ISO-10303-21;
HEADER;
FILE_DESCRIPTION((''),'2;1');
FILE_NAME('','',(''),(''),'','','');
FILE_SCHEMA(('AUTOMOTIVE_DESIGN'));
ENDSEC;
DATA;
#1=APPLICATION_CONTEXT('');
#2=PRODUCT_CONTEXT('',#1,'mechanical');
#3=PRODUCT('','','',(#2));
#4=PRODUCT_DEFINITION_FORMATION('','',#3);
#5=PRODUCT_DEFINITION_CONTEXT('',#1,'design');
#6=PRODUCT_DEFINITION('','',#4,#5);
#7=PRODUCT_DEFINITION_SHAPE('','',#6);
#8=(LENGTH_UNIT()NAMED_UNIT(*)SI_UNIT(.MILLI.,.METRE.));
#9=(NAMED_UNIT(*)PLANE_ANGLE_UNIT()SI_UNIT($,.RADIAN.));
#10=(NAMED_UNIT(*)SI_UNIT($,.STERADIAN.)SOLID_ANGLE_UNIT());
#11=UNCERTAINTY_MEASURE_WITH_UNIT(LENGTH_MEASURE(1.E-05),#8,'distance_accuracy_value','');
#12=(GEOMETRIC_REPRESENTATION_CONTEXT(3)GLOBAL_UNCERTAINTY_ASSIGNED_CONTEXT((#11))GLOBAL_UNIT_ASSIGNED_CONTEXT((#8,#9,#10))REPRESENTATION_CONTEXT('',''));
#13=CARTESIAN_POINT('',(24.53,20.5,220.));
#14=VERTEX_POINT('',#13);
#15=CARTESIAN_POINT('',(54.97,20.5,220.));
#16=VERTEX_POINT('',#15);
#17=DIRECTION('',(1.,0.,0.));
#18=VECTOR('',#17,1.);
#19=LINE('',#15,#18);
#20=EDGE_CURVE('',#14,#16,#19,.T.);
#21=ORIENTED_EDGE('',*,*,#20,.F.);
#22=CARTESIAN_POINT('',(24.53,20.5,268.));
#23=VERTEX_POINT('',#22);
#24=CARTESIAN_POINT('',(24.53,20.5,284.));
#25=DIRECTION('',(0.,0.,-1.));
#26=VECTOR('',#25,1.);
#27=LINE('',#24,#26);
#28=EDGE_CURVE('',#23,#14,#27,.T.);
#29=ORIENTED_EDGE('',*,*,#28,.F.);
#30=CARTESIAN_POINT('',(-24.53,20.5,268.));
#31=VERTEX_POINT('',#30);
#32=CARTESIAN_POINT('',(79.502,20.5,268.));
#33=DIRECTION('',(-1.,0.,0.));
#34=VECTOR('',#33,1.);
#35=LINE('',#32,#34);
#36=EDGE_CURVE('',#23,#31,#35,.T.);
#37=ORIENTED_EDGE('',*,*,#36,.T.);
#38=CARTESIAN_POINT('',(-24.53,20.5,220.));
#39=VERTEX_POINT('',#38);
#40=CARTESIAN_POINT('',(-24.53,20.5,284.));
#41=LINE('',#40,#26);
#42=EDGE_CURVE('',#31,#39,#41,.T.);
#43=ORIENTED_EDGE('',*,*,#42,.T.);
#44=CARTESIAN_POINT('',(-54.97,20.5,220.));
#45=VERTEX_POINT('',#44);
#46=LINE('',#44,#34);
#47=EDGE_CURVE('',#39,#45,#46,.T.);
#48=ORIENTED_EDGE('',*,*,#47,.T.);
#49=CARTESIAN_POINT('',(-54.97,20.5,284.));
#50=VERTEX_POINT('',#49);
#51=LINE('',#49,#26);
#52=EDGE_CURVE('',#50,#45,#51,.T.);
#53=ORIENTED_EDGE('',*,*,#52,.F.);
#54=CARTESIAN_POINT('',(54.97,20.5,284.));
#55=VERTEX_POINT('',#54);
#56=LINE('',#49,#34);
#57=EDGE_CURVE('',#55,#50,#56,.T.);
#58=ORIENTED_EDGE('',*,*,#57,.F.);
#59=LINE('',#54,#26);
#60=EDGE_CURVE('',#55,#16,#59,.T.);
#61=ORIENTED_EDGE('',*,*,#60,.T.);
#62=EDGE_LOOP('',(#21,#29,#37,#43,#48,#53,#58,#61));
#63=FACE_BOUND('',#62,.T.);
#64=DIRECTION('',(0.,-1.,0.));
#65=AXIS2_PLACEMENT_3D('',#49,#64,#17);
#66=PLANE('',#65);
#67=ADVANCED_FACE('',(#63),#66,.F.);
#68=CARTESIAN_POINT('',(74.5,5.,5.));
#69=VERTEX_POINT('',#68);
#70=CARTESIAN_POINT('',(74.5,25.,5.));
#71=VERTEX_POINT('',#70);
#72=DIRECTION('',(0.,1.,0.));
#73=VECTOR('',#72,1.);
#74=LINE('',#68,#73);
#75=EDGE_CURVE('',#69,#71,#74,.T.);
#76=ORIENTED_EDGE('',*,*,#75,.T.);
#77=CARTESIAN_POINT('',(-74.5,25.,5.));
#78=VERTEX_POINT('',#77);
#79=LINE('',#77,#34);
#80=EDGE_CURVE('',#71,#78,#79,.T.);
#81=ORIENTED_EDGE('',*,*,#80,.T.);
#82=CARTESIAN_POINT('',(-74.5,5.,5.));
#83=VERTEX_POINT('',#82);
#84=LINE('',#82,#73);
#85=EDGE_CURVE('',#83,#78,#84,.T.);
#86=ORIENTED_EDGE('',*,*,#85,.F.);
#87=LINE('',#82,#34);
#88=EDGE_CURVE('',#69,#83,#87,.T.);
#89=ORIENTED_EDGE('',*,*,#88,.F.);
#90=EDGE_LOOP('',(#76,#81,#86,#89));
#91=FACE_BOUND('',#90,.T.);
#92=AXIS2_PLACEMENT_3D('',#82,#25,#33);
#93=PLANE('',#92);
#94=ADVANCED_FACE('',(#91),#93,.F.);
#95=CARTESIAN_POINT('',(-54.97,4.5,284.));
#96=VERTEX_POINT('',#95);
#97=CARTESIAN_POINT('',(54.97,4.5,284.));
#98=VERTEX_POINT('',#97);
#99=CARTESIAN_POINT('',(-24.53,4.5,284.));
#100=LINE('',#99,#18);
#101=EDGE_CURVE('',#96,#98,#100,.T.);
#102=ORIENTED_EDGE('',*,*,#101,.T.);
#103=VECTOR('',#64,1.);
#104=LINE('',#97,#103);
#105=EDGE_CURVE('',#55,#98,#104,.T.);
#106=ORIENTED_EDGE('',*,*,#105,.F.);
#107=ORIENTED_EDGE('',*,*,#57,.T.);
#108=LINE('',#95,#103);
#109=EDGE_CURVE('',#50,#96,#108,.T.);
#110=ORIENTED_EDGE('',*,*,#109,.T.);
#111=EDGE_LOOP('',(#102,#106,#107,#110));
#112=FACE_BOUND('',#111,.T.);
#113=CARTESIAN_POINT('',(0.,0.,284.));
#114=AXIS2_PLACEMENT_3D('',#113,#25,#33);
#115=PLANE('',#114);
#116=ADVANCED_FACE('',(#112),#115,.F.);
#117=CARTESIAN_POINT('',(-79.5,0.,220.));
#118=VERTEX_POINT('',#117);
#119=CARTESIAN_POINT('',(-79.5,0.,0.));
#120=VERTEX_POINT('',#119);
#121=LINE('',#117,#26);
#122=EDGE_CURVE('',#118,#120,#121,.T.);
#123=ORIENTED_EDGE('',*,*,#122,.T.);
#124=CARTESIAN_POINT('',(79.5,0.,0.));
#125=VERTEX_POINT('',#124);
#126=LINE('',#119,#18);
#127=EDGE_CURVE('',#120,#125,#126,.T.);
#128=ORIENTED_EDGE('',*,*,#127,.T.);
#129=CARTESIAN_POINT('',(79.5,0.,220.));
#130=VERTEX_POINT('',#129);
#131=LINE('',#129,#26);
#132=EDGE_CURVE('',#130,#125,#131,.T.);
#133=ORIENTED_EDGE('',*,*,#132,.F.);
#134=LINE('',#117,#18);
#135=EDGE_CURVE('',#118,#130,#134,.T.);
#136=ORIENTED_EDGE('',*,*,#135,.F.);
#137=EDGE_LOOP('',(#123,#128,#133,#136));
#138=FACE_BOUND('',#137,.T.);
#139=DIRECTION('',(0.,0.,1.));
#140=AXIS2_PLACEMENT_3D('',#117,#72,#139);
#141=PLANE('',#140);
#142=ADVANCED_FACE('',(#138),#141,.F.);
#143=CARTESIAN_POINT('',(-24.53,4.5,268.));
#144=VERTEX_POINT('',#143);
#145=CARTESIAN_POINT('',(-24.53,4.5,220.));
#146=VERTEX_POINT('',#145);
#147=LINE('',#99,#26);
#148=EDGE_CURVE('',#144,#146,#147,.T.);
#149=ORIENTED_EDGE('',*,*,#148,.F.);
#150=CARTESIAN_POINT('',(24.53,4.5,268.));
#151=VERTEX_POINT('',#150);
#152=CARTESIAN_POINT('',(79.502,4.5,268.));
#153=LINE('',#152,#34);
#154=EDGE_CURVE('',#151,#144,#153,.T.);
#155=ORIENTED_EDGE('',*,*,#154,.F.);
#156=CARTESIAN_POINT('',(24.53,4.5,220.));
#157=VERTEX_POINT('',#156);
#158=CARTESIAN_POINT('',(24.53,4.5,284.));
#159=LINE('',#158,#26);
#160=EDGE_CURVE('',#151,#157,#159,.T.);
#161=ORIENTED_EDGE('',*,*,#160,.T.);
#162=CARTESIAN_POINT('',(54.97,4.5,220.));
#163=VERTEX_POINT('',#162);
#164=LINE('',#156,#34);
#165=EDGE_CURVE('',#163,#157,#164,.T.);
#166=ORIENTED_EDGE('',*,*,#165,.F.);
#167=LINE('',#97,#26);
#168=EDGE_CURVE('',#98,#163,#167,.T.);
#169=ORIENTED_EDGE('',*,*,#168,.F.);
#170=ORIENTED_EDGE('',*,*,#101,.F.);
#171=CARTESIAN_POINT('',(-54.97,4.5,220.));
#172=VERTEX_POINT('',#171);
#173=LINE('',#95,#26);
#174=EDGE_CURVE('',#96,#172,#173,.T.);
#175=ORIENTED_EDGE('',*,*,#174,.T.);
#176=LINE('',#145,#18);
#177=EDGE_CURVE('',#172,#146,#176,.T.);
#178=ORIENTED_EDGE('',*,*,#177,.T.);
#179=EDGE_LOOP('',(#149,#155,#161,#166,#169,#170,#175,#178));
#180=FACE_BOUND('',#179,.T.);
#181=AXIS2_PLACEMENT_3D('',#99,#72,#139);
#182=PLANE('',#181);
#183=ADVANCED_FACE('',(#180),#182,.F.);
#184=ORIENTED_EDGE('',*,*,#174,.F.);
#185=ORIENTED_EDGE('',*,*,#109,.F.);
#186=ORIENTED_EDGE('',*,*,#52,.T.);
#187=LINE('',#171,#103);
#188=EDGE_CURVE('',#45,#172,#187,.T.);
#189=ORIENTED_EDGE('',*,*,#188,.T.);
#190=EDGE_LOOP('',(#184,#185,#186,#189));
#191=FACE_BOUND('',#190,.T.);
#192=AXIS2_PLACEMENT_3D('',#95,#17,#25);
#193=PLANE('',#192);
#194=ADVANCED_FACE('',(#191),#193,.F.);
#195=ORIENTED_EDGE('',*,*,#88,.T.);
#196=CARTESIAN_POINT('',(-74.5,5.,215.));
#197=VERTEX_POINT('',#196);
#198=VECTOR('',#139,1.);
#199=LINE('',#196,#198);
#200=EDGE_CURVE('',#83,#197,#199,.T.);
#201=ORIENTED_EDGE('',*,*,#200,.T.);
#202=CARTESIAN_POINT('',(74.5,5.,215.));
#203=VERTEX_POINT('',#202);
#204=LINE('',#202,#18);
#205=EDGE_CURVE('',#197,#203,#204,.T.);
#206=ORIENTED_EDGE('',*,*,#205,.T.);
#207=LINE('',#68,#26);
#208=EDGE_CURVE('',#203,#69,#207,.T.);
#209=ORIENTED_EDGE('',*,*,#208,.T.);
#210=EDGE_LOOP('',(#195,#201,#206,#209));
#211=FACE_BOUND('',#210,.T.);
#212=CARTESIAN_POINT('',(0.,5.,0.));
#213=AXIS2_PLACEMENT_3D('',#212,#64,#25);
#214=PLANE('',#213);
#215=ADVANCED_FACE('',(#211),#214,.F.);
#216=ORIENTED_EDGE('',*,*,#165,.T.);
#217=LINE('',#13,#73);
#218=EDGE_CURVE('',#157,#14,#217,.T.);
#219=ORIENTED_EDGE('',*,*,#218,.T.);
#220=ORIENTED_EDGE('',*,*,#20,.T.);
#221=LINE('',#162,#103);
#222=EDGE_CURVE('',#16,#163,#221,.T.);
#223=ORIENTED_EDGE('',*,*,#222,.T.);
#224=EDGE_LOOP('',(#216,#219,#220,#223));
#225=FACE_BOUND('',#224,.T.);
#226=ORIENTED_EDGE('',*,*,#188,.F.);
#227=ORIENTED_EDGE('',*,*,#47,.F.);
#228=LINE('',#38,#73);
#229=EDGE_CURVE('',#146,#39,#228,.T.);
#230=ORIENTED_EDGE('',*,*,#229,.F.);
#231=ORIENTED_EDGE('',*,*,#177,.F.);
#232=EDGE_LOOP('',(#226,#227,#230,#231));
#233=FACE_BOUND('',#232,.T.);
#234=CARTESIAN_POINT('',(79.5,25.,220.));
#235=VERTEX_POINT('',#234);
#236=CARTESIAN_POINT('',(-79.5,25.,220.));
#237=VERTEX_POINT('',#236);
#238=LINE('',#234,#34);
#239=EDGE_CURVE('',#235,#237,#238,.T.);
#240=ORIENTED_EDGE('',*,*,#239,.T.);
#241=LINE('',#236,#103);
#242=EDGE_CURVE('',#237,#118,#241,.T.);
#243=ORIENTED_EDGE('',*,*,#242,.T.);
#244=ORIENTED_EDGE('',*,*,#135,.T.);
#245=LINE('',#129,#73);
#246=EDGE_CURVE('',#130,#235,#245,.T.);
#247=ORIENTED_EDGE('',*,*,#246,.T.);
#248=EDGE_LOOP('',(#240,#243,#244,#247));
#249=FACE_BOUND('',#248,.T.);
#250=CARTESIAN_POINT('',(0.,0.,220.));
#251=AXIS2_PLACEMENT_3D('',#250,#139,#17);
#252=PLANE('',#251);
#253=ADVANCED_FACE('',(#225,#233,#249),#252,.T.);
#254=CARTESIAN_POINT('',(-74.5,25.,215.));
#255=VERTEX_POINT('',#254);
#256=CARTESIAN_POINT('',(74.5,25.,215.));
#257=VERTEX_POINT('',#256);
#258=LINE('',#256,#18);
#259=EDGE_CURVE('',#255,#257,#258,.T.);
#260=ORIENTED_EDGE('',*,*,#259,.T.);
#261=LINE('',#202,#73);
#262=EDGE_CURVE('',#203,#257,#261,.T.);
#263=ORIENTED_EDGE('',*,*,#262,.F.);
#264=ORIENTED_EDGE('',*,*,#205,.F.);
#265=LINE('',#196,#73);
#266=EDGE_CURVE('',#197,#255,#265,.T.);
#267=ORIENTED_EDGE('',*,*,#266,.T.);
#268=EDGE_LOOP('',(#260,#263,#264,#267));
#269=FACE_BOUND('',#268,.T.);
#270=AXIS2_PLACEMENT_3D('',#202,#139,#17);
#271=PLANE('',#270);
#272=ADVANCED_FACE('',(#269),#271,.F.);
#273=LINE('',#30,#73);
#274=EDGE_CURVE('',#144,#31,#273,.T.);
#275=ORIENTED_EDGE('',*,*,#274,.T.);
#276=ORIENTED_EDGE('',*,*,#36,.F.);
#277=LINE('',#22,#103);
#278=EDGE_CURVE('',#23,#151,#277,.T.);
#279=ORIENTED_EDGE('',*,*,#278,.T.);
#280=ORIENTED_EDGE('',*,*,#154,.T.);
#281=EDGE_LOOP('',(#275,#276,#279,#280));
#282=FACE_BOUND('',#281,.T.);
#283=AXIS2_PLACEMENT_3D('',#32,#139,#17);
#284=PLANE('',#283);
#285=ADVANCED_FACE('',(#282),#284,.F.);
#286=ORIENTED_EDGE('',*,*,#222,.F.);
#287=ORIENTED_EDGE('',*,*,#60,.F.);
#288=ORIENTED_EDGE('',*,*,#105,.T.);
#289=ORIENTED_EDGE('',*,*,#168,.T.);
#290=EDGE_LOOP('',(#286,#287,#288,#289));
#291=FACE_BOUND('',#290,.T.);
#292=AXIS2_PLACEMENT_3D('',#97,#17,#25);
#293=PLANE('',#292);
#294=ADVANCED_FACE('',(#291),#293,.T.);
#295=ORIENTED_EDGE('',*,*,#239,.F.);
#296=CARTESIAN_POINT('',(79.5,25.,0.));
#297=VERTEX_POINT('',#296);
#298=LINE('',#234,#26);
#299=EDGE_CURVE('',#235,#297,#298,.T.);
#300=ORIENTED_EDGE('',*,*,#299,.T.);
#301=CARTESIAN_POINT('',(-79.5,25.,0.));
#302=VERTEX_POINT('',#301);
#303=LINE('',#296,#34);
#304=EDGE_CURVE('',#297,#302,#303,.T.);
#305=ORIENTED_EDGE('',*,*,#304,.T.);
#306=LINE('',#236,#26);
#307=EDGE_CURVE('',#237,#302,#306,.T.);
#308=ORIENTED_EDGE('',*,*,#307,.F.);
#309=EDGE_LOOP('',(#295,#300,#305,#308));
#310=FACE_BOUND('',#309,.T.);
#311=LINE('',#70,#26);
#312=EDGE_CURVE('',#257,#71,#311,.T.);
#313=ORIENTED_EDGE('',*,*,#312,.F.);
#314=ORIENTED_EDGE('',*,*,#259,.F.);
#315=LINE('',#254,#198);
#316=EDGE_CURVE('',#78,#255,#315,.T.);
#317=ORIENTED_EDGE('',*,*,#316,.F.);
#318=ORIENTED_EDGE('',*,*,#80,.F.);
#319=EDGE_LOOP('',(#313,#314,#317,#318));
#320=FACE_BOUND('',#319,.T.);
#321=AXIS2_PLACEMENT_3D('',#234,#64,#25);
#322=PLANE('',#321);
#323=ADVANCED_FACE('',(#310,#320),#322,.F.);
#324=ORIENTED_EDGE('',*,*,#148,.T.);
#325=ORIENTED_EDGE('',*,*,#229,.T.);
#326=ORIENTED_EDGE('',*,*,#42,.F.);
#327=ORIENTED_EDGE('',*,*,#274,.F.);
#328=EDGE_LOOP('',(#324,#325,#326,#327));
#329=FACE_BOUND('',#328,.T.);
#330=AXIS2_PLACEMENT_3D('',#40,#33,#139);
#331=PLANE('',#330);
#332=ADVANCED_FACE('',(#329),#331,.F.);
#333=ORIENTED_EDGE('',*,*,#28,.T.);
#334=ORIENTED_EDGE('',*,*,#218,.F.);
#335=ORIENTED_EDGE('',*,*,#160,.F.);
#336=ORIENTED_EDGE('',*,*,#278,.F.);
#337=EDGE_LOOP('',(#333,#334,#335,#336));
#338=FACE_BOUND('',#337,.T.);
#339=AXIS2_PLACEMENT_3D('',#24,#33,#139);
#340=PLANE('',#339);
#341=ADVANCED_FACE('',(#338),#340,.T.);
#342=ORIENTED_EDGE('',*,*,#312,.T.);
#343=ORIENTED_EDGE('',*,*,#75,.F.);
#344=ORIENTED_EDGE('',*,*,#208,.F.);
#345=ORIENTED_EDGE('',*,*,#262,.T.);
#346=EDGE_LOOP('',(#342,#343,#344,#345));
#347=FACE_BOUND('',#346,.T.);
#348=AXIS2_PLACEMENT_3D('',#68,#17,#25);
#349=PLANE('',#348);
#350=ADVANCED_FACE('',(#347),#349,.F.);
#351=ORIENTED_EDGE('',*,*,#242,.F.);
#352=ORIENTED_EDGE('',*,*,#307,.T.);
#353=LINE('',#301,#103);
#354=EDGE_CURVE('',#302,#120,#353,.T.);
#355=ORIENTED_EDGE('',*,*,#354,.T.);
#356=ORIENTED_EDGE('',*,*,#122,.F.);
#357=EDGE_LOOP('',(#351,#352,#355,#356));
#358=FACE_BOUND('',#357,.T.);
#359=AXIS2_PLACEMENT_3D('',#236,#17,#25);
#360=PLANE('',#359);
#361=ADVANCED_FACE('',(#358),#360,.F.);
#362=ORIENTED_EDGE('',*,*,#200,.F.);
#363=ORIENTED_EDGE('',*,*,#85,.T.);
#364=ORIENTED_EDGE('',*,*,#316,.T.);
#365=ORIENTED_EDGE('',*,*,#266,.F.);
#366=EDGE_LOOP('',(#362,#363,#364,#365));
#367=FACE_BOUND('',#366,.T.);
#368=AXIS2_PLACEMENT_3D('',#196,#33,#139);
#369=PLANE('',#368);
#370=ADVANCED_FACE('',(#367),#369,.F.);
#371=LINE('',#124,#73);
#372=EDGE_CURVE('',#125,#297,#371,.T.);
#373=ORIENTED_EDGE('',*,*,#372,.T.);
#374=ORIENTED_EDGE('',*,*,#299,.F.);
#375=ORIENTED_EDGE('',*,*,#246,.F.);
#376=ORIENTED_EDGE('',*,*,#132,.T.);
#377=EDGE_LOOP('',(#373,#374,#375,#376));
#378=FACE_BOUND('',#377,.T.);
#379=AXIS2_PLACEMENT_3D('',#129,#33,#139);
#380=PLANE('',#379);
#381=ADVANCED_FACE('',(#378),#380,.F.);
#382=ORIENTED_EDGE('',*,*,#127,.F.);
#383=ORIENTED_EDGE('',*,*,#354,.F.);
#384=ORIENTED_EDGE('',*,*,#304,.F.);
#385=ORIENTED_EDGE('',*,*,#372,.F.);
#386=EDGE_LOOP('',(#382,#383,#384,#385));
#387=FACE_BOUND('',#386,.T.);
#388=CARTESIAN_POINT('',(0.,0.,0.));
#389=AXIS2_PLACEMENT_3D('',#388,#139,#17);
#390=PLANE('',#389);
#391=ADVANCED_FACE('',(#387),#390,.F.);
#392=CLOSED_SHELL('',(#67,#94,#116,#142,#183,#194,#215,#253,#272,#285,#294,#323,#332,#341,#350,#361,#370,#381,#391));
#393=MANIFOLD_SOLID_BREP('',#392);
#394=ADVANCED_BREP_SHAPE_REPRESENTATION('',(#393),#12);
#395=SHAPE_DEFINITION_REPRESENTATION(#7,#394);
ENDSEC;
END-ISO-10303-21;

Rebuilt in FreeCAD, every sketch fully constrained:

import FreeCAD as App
import Part
import Sketcher

V = App.Vector
Q = App.Units.Quantity

doc = App.newDocument("Part")
body = doc.addObject("PartDesign::Body", "Body")

# Sketch on XY plane
sketch1 = body.newObject("Sketcher::SketchObject", "Sketch")
sketch1.AttachmentSupport = (doc.getObject("XY_Plane"), [""])
sketch1.MapMode = "FlatFace"
sketch1.addGeometry([
    Part.LineSegment(V(-80, 25, 0), V(-80, 0, 0)),
    Part.LineSegment(V(-80, 0, 0), V(80, 0, 0)),
    Part.LineSegment(V(80, 0, 0), V(80, 25, 0)),
    Part.LineSegment(V(80, 25, 0), V(-80, 25, 0)),
], False)
sketch1.addConstraint([
    Sketcher.Constraint("Coincident", 0, 2, 1, 1),
    Sketcher.Constraint("Coincident", 1, 2, 2, 1),
    Sketcher.Constraint("Coincident", 2, 2, 3, 1),
    Sketcher.Constraint("Coincident", 3, 2, 0, 1),
    Sketcher.Constraint("Vertical", 0),
    Sketcher.Constraint("Horizontal", 1),
    Sketcher.Constraint("Vertical", 2),
    Sketcher.Constraint("Horizontal", 3),
    Sketcher.Constraint("Symmetric", 0, 2, 1, 2, -1, 1),
    Sketcher.Constraint("DistanceX", 1, 1, 1, 2, Q("159 mm")),
    Sketcher.Constraint("DistanceY", 0, 2, 0, 1, Q("25 mm")),
])
pad1 = body.newObject("PartDesign::Pad", "Pad")
pad1.Profile = sketch1
pad1.Length = 220

# Sketch on XZ plane
sketch2 = body.newObject("Sketcher::SketchObject", "Sketch001")
sketch2.AttachmentSupport = (doc.getObject("XZ_Plane"), [""])
sketch2.MapMode = "FlatFace"
sketch2.AttachmentOffset = App.Placement(V(0, 0, -25), App.Rotation())
sketch2.addGeometry([
    Part.LineSegment(V(-74, 5, 0), V(-74, 215, 0)),
    Part.LineSegment(V(-74, 215, 0), V(74, 215, 0)),
    Part.LineSegment(V(74, 215, 0), V(74, 5, 0)),
    Part.LineSegment(V(74, 5, 0), V(-74, 5, 0)),
], False)
sketch2.addConstraint([
    Sketcher.Constraint("Coincident", 0, 2, 1, 1),
    Sketcher.Constraint("Coincident", 1, 2, 2, 1),
    Sketcher.Constraint("Coincident", 2, 2, 3, 1),
    Sketcher.Constraint("Coincident", 3, 2, 0, 1),
    Sketcher.Constraint("Vertical", 0),
    Sketcher.Constraint("Horizontal", 1),
    Sketcher.Constraint("Vertical", 2),
    Sketcher.Constraint("Horizontal", 3),
    Sketcher.Constraint("DistanceX", 1, 1, 1, 2, Q("149 mm")),
    Sketcher.Constraint("DistanceY", 0, 1, 0, 2, Q("210 mm")),
    Sketcher.Constraint("DistanceY", -1, 1, 0, 2, Q("215 mm")),
    Sketcher.Constraint("DistanceX", 0, 2, -1, 1, Q("74.5 mm")),
])
pocket1 = body.newObject("PartDesign::Pocket", "Pocket")
pocket1.Profile = sketch2
pocket1.Length = 20
pocket1.Reversed = True

# Sketch on XY plane
sketch3 = body.newObject("Sketcher::SketchObject", "Sketch002")
sketch3.AttachmentSupport = (doc.getObject("XY_Plane"), [""])
sketch3.MapMode = "FlatFace"
sketch3.AttachmentOffset = App.Placement(V(0, 0, 220), App.Rotation())
sketch3.addGeometry([
    Part.LineSegment(V(-55, 20, 0), V(-55, 4, 0)),
    Part.LineSegment(V(-55, 4, 0), V(-25, 4, 0)),
    Part.LineSegment(V(-25, 4, 0), V(-25, 20, 0)),
    Part.LineSegment(V(-25, 20, 0), V(-55, 20, 0)),
], False)
sketch3.addConstraint([
    Sketcher.Constraint("Coincident", 0, 2, 1, 1),
    Sketcher.Constraint("Coincident", 1, 2, 2, 1),
    Sketcher.Constraint("Coincident", 2, 2, 3, 1),
    Sketcher.Constraint("Coincident", 3, 2, 0, 1),
    Sketcher.Constraint("Vertical", 0),
    Sketcher.Constraint("Horizontal", 1),
    Sketcher.Constraint("Vertical", 2),
    Sketcher.Constraint("Horizontal", 3),
    Sketcher.Constraint("DistanceY", 0, 2, 0, 1, Q("16 mm")),
    Sketcher.Constraint("DistanceX", 1, 1, 1, 2, Q("30.44 mm")),
    Sketcher.Constraint("DistanceY", -1, 1, 0, 2, Q("4.5 mm")),
    Sketcher.Constraint("DistanceX", 0, 2, -1, 1, Q("54.97 mm")),
])
pad2 = body.newObject("PartDesign::Pad", "Pad001")
pad2.Profile = sketch3
pad2.Length = 64
doc.recompute()

mirrored = body.newObject("PartDesign::Mirrored", "Mirrored")
mirrored.Originals = [pad2]
mirrored.MirrorPlane = (doc.getObject("YZ_Plane"), [""])
body.Tip = mirrored

# Sketch on YZ plane
sketch4 = body.newObject("Sketcher::SketchObject", "Sketch003")
sketch4.AttachmentSupport = (doc.getObject("YZ_Plane"), [""])
sketch4.MapMode = "FlatFace"
sketch4.AttachmentOffset = App.Placement(V(0, 0, -24.53), App.Rotation())
sketch4.addGeometry([
    Part.LineSegment(V(20, 284, 0), V(4, 284, 0)),
    Part.LineSegment(V(4, 284, 0), V(4, 268, 0)),
    Part.LineSegment(V(4, 268, 0), V(20, 268, 0)),
    Part.LineSegment(V(20, 268, 0), V(20, 284, 0)),
], False)
sketch4.addConstraint([
    Sketcher.Constraint("Coincident", 0, 2, 1, 1),
    Sketcher.Constraint("Coincident", 1, 2, 2, 1),
    Sketcher.Constraint("Coincident", 2, 2, 3, 1),
    Sketcher.Constraint("Coincident", 3, 2, 0, 1),
    Sketcher.Constraint("Horizontal", 0),
    Sketcher.Constraint("Vertical", 1),
    Sketcher.Constraint("Horizontal", 2),
    Sketcher.Constraint("Vertical", 3),
    Sketcher.Constraint("Equal", 2, 1),
    Sketcher.Constraint("DistanceX", 0, 2, 0, 1, Q("16 mm")),
    Sketcher.Constraint("DistanceY", -1, 1, 0, 2, Q("284 mm")),
    Sketcher.Constraint("DistanceX", -1, 1, 0, 2, Q("4.5 mm")),
])
pad3 = body.newObject("PartDesign::Pad", "Pad002")
pad3.Profile = sketch4
pad3.Type = "UpToFirst"

doc.recompute()
